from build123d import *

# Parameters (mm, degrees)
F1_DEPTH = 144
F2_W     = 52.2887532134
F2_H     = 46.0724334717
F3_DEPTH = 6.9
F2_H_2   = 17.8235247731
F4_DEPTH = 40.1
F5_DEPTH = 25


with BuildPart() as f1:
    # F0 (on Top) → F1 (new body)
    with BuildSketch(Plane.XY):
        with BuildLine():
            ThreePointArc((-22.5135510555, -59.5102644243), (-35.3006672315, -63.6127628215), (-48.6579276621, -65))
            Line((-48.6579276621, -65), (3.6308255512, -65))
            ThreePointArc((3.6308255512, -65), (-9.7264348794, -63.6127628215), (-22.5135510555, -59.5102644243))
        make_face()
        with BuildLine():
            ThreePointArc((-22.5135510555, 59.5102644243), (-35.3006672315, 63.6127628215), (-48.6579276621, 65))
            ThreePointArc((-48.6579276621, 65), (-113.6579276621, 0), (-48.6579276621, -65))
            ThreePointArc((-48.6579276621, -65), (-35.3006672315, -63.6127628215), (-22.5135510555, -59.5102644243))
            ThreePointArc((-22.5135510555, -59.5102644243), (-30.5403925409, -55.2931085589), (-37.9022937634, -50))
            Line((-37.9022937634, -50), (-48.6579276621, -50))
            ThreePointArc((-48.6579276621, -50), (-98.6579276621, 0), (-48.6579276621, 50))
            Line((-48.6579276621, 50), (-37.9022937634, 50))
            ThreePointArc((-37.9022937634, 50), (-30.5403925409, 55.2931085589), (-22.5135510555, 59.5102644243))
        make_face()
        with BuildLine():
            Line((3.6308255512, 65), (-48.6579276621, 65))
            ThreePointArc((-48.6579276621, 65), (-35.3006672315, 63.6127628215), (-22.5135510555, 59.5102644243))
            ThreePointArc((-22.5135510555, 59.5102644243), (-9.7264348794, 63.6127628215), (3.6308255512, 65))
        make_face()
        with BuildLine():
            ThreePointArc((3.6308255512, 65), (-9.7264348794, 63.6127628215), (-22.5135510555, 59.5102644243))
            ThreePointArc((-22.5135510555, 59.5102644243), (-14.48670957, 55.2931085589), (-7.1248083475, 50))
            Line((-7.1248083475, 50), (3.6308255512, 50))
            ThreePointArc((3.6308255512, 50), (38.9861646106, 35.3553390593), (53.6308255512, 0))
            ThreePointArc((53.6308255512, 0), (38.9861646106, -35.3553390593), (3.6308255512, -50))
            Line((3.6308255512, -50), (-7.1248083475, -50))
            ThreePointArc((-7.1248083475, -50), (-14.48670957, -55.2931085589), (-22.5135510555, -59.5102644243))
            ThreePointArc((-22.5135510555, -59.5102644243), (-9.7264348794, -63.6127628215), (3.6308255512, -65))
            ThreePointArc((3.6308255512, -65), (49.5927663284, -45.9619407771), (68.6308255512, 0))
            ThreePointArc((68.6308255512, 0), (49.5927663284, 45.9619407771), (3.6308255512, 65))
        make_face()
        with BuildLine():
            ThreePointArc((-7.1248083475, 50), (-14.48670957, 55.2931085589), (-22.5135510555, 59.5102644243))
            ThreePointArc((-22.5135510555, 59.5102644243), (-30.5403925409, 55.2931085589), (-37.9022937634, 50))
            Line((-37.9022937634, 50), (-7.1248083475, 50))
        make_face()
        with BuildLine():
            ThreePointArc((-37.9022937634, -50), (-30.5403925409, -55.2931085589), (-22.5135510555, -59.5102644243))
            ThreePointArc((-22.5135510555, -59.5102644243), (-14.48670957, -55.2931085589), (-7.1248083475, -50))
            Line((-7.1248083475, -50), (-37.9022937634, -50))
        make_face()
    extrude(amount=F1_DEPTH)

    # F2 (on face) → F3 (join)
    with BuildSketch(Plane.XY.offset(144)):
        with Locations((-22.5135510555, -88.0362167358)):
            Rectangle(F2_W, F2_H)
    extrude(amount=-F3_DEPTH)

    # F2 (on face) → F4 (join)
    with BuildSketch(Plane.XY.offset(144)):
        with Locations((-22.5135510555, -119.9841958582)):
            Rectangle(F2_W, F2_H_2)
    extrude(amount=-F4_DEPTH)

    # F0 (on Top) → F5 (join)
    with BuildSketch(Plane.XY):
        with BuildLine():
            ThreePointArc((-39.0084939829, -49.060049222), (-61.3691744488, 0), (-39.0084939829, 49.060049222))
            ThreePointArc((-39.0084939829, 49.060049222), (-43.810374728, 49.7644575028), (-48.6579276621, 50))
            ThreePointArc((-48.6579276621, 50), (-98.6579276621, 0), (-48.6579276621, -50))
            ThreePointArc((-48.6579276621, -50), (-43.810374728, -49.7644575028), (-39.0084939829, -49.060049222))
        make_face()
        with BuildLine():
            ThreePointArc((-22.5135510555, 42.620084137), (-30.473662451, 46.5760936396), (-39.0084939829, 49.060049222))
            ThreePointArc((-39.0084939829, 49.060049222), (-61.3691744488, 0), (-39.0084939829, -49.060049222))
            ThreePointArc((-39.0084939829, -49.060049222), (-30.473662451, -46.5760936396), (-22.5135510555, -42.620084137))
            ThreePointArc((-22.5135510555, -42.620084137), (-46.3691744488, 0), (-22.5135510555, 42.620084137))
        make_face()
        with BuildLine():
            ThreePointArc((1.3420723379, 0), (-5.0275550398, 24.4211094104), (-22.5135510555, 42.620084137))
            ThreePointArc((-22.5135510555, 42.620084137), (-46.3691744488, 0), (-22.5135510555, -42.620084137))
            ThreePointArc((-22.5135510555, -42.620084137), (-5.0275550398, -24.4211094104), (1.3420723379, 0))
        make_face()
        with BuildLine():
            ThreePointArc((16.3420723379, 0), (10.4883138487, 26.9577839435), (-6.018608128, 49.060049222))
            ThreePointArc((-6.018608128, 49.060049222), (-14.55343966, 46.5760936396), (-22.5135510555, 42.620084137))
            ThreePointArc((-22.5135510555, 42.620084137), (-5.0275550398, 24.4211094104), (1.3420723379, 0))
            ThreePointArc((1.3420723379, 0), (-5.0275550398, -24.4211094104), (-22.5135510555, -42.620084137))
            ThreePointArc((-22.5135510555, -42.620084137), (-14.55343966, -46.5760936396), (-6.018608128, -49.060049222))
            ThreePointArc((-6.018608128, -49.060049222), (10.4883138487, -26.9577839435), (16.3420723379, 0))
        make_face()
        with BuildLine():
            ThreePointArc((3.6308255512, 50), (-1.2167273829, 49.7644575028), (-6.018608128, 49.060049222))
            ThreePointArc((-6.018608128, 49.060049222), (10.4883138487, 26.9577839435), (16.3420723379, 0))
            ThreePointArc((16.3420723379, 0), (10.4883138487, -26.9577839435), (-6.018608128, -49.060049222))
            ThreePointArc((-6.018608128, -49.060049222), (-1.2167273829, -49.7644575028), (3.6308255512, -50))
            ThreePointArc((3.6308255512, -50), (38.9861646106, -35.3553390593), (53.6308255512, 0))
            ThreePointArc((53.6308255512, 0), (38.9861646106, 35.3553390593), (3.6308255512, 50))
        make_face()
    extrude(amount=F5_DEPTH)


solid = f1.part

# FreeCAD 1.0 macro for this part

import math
import FreeCAD as App
import Part
import Sketcher


def add_polygon(sketch, points):
    """Adds a closed chain of lines whose ends are joined by coincident constraints."""
    first, n = sketch.GeometryCount, len(points)
    for a, b in zip(points, points[1:] + points[:1]):
        sketch.addGeometry(Part.LineSegment(App.Vector(*a, 0), App.Vector(*b, 0)), False)
    for i in range(n):
        sketch.addConstraint(Sketcher.Constraint("Coincident", first + i, 2, first + (i + 1) % n, 1))

doc = App.newDocument("Part")
body = doc.addObject("PartDesign::Body", "Body")

# Sketch on XY plane
sketch1 = body.newObject("Sketcher::SketchObject", "Sketch")
sketch1.AttachmentSupport = (doc.getObject("XY_Plane"), [""])
sketch1.MapMode = "FlatFace"
sketch1.addGeometry([
    Part.LineSegment(App.Vector(-49, -65, 0), App.Vector(4, -65, 0)),  # 0
    Part.ArcOfCircle(Part.Circle(App.Vector(4, 0, 0), App.Vector(0, 0, 1), 65), math.radians(-90), math.radians(0)),  # 1
    Part.ArcOfCircle(Part.Circle(App.Vector(4, 0, 0), App.Vector(0, 0, 1), 65), math.radians(0), math.radians(90)),  # 2
    Part.LineSegment(App.Vector(4, 65, 0), App.Vector(-49, 65, 0)),  # 3
    Part.ArcOfCircle(Part.Circle(App.Vector(-49, 0, 0), App.Vector(0, 0, 1), 65), math.radians(90), math.radians(270)),  # 4
    Part.ArcOfCircle(Part.Circle(App.Vector(-49, 0, 0), App.Vector(0, 0, 1), 50), math.radians(90), math.radians(270)),  # 5
    Part.LineSegment(App.Vector(-49, 50, 0), App.Vector(4, 50, 0)),  # 6
    Part.ArcOfCircle(Part.Circle(App.Vector(4, 0, 0), App.Vector(0, 0, 1), 50), math.radians(0), math.radians(90)),  # 7
    Part.ArcOfCircle(Part.Circle(App.Vector(4, 0, 0), App.Vector(0, 0, 1), 50), math.radians(-90), math.radians(0)),  # 8
    Part.LineSegment(App.Vector(4, -50, 0), App.Vector(-49, -50, 0)),  # 9
], False)
sketch1.addConstraint([
    Sketcher.Constraint("Tangent", 0, 2, 1, 1),
    Sketcher.Constraint("Tangent", 1, 2, 2, 1),
    Sketcher.Constraint("Tangent", 2, 2, 3, 1),
    Sketcher.Constraint("Tangent", 3, 2, 4, 1),
    Sketcher.Constraint("Tangent", 4, 2, 0, 1),
    Sketcher.Constraint("Tangent", 5, 1, 6, 1),
    Sketcher.Constraint("Tangent", 6, 2, 7, 2),
    Sketcher.Constraint("Tangent", 7, 1, 8, 2),
    Sketcher.Constraint("Tangent", 8, 1, 9, 1),
    Sketcher.Constraint("Tangent", 9, 2, 5, 2),
    Sketcher.Constraint("Horizontal", 0),
    Sketcher.Constraint("Horizontal", 3),
    Sketcher.Constraint("Horizontal", 6),
    Sketcher.Constraint("Horizontal", 9),
    Sketcher.Constraint("Coincident", 5, 3, 4, 3),
    Sketcher.Constraint("Coincident", 7, 3, 1, 3),
    Sketcher.Constraint("Equal", 1, 2),
    Sketcher.Constraint("PointOnObject", 1, 3, -1),
    Sketcher.Constraint("PointOnObject", 1, 2, -1),
    Sketcher.Constraint("PointOnObject", 7, 1, -1),
    Sketcher.Constraint("Radius", 1, 65.0),
    Sketcher.Constraint("Radius", 5, 50.0),
    Sketcher.Constraint("DistanceX", 0, 1, 0, 2, 52.288753),
    Sketcher.Constraint("DistanceX", -1, 1, 1, 3, 3.630826),
])
pad1 = body.newObject("PartDesign::Pad", "Pad")
pad1.Profile = sketch1
pad1.Length = 144

# Sketch on XY plane
sketch2 = body.newObject("Sketcher::SketchObject", "Sketch001")
sketch2.AttachmentSupport = (doc.getObject("XY_Plane"), [""])
sketch2.MapMode = "FlatFace"
sketch2.AttachmentOffset = App.Placement(App.Vector(0, 0, 144), App.Rotation())
add_polygon(sketch2, [(-49, -65), (-49, -111), (4, -111), (4, -65)])  # lines 0-3
sketch2.addConstraint([
    Sketcher.Constraint("Vertical", 0),
    Sketcher.Constraint("Horizontal", 1),
    Sketcher.Constraint("Vertical", 2),
    Sketcher.Constraint("Horizontal", 3),
    Sketcher.Constraint("DistanceY", 2, 2, -1, 1, 65.0),
    Sketcher.Constraint("DistanceX", 1, 1, 1, 2, 52.288753),
    Sketcher.Constraint("DistanceY", 0, 2, 0, 1, 46.072433),
    Sketcher.Constraint("DistanceX", 0, 2, -1, 1, 48.657928),
])
pad2 = body.newObject("PartDesign::Pad", "Pad001")
pad2.Profile = sketch2
pad2.Length = 6.9
pad2.Reversed = True

# Sketch on XY plane
sketch3 = body.newObject("Sketcher::SketchObject", "Sketch002")
sketch3.AttachmentSupport = (doc.getObject("XY_Plane"), [""])
sketch3.MapMode = "FlatFace"
sketch3.AttachmentOffset = App.Placement(App.Vector(0, 0, 144), App.Rotation())
add_polygon(sketch3, [(-49, -111), (-49, -129), (4, -129), (4, -111)])  # lines 0-3
sketch3.addConstraint([
    Sketcher.Constraint("Vertical", 0),
    Sketcher.Constraint("Horizontal", 1),
    Sketcher.Constraint("Vertical", 2),
    Sketcher.Constraint("Horizontal", 3),
    Sketcher.Constraint("DistanceX", 1, 1, 1, 2, 52.288753),
    Sketcher.Constraint("DistanceY", 0, 2, 0, 1, 17.823525),
    Sketcher.Constraint("DistanceY", 0, 2, -1, 1, 128.895958),
    Sketcher.Constraint("DistanceX", 0, 2, -1, 1, 48.657928),
])
pad3 = body.newObject("PartDesign::Pad", "Pad002")
pad3.Profile = sketch3
pad3.Length = 40.1
pad3.Reversed = True

# Sketch on XY plane
sketch4 = body.newObject("Sketcher::SketchObject", "Sketch003")
sketch4.AttachmentSupport = (doc.getObject("XY_Plane"), [""])
sketch4.MapMode = "FlatFace"
sketch4.addGeometry([
    Part.ArcOfCircle(Part.Circle(App.Vector(-49, 0, 0), App.Vector(0, 0, 1), 50), math.radians(78.87), math.radians(90)),  # 0
    Part.ArcOfCircle(Part.Circle(App.Vector(-49, 0, 0), App.Vector(0, 0, 1), 50), math.radians(90), math.radians(270)),  # 1
    Part.ArcOfCircle(Part.Circle(App.Vector(-49, 0, 0), App.Vector(0, 0, 1), 50), math.radians(-90), math.radians(-78.87)),  # 2
    Part.ArcOfCircle(Part.Circle(App.Vector(-49, 0, 0), App.Vector(0, 0, 1), 50), math.radians(-79), math.radians(-58)),  # 3
    Part.ArcOfCircle(Part.Circle(App.Vector(4, 0, 0), App.Vector(0, 0, 1), 50), math.radians(-122), math.radians(-101)),  # 4
    Part.ArcOfCircle(Part.Circle(App.Vector(4, 0, 0), App.Vector(0, 0, 1), 50), math.radians(-101.13), math.radians(-90)),  # 5
    Part.ArcOfCircle(Part.Circle(App.Vector(4, 0, 0), App.Vector(0, 0, 1), 50), math.radians(-90), math.radians(0)),  # 6
    Part.ArcOfCircle(Part.Circle(App.Vector(4, 0, 0), App.Vector(0, 0, 1), 50), math.radians(0), math.radians(90)),  # 7
    Part.ArcOfCircle(Part.Circle(App.Vector(4, 0, 0), App.Vector(0, 0, 1), 50), math.radians(90), math.radians(101.13)),  # 8
    Part.ArcOfCircle(Part.Circle(App.Vector(4, 0, 0), App.Vector(0, 0, 1), 50), math.radians(101), math.radians(122)),  # 9
    Part.ArcOfCircle(Part.Circle(App.Vector(-49, 0, 0), App.Vector(0, 0, 1), 50), math.radians(58), math.radians(79)),  # 10
], False)
sketch4.addConstraint([
    Sketcher.Constraint("Tangent", 0, 2, 1, 1),
    Sketcher.Constraint("Tangent", 1, 2, 2, 1),
    Sketcher.Constraint("Tangent", 2, 2, 3, 1),
    Sketcher.Constraint("Coincident", 3, 2, 4, 1),
    Sketcher.Constraint("Tangent", 4, 2, 5, 1),
    Sketcher.Constraint("Tangent", 5, 2, 6, 1),
    Sketcher.Constraint("Tangent", 6, 2, 7, 1),
    Sketcher.Constraint("Tangent", 7, 2, 8, 1),
    Sketcher.Constraint("Tangent", 8, 2, 9, 1),
    Sketcher.Constraint("Coincident", 9, 2, 10, 1),
    Sketcher.Constraint("Tangent", 10, 2, 0, 1),
    Sketcher.Constraint("Coincident", 3, 3, 0, 3),
    Sketcher.Constraint("Coincident", 6, 3, 4, 3),
    Sketcher.Constraint("Coincident", 8, 3, 4, 3),
    Sketcher.Constraint("Equal", 0, 1),
    Sketcher.Constraint("Equal", 3, 4),
    Sketcher.Constraint("Equal", 8, 9),
    Sketcher.Constraint("Equal", 9, 10),
    Sketcher.Constraint("Symmetric", 0, 2, 1, 2, -1),
    Sketcher.Constraint("Symmetric", 5, 2, 7, 2, -1),
    Sketcher.Constraint("PointOnObject", 6, 2, -1),
    Sketcher.Constraint("Horizontal", 2, 2, 4, 2),
    Sketcher.Constraint("Horizontal", 8, 2, 10, 2),
    Sketcher.Constraint("Vertical", 10, 3, 0, 2),
    Sketcher.Constraint("Vertical", 9, 3, 5, 2),
    Sketcher.Constraint("Vertical", 4, 2, 8, 2),
    Sketcher.Constraint("Radius", 0, 50.0),
    Sketcher.Constraint("DistanceY", 2, 2, -1, 1, 49.060049),
    Sketcher.Constraint("DistanceX", 3, 2, -1, 1, 22.513551),
    Sketcher.Constraint("DistanceX", 4, 2, -1, 1, 6.018608),
])
pad4 = body.newObject("PartDesign::Pad", "Pad003")
pad4.Profile = sketch4
pad4.Length = 25

doc.recompute()
